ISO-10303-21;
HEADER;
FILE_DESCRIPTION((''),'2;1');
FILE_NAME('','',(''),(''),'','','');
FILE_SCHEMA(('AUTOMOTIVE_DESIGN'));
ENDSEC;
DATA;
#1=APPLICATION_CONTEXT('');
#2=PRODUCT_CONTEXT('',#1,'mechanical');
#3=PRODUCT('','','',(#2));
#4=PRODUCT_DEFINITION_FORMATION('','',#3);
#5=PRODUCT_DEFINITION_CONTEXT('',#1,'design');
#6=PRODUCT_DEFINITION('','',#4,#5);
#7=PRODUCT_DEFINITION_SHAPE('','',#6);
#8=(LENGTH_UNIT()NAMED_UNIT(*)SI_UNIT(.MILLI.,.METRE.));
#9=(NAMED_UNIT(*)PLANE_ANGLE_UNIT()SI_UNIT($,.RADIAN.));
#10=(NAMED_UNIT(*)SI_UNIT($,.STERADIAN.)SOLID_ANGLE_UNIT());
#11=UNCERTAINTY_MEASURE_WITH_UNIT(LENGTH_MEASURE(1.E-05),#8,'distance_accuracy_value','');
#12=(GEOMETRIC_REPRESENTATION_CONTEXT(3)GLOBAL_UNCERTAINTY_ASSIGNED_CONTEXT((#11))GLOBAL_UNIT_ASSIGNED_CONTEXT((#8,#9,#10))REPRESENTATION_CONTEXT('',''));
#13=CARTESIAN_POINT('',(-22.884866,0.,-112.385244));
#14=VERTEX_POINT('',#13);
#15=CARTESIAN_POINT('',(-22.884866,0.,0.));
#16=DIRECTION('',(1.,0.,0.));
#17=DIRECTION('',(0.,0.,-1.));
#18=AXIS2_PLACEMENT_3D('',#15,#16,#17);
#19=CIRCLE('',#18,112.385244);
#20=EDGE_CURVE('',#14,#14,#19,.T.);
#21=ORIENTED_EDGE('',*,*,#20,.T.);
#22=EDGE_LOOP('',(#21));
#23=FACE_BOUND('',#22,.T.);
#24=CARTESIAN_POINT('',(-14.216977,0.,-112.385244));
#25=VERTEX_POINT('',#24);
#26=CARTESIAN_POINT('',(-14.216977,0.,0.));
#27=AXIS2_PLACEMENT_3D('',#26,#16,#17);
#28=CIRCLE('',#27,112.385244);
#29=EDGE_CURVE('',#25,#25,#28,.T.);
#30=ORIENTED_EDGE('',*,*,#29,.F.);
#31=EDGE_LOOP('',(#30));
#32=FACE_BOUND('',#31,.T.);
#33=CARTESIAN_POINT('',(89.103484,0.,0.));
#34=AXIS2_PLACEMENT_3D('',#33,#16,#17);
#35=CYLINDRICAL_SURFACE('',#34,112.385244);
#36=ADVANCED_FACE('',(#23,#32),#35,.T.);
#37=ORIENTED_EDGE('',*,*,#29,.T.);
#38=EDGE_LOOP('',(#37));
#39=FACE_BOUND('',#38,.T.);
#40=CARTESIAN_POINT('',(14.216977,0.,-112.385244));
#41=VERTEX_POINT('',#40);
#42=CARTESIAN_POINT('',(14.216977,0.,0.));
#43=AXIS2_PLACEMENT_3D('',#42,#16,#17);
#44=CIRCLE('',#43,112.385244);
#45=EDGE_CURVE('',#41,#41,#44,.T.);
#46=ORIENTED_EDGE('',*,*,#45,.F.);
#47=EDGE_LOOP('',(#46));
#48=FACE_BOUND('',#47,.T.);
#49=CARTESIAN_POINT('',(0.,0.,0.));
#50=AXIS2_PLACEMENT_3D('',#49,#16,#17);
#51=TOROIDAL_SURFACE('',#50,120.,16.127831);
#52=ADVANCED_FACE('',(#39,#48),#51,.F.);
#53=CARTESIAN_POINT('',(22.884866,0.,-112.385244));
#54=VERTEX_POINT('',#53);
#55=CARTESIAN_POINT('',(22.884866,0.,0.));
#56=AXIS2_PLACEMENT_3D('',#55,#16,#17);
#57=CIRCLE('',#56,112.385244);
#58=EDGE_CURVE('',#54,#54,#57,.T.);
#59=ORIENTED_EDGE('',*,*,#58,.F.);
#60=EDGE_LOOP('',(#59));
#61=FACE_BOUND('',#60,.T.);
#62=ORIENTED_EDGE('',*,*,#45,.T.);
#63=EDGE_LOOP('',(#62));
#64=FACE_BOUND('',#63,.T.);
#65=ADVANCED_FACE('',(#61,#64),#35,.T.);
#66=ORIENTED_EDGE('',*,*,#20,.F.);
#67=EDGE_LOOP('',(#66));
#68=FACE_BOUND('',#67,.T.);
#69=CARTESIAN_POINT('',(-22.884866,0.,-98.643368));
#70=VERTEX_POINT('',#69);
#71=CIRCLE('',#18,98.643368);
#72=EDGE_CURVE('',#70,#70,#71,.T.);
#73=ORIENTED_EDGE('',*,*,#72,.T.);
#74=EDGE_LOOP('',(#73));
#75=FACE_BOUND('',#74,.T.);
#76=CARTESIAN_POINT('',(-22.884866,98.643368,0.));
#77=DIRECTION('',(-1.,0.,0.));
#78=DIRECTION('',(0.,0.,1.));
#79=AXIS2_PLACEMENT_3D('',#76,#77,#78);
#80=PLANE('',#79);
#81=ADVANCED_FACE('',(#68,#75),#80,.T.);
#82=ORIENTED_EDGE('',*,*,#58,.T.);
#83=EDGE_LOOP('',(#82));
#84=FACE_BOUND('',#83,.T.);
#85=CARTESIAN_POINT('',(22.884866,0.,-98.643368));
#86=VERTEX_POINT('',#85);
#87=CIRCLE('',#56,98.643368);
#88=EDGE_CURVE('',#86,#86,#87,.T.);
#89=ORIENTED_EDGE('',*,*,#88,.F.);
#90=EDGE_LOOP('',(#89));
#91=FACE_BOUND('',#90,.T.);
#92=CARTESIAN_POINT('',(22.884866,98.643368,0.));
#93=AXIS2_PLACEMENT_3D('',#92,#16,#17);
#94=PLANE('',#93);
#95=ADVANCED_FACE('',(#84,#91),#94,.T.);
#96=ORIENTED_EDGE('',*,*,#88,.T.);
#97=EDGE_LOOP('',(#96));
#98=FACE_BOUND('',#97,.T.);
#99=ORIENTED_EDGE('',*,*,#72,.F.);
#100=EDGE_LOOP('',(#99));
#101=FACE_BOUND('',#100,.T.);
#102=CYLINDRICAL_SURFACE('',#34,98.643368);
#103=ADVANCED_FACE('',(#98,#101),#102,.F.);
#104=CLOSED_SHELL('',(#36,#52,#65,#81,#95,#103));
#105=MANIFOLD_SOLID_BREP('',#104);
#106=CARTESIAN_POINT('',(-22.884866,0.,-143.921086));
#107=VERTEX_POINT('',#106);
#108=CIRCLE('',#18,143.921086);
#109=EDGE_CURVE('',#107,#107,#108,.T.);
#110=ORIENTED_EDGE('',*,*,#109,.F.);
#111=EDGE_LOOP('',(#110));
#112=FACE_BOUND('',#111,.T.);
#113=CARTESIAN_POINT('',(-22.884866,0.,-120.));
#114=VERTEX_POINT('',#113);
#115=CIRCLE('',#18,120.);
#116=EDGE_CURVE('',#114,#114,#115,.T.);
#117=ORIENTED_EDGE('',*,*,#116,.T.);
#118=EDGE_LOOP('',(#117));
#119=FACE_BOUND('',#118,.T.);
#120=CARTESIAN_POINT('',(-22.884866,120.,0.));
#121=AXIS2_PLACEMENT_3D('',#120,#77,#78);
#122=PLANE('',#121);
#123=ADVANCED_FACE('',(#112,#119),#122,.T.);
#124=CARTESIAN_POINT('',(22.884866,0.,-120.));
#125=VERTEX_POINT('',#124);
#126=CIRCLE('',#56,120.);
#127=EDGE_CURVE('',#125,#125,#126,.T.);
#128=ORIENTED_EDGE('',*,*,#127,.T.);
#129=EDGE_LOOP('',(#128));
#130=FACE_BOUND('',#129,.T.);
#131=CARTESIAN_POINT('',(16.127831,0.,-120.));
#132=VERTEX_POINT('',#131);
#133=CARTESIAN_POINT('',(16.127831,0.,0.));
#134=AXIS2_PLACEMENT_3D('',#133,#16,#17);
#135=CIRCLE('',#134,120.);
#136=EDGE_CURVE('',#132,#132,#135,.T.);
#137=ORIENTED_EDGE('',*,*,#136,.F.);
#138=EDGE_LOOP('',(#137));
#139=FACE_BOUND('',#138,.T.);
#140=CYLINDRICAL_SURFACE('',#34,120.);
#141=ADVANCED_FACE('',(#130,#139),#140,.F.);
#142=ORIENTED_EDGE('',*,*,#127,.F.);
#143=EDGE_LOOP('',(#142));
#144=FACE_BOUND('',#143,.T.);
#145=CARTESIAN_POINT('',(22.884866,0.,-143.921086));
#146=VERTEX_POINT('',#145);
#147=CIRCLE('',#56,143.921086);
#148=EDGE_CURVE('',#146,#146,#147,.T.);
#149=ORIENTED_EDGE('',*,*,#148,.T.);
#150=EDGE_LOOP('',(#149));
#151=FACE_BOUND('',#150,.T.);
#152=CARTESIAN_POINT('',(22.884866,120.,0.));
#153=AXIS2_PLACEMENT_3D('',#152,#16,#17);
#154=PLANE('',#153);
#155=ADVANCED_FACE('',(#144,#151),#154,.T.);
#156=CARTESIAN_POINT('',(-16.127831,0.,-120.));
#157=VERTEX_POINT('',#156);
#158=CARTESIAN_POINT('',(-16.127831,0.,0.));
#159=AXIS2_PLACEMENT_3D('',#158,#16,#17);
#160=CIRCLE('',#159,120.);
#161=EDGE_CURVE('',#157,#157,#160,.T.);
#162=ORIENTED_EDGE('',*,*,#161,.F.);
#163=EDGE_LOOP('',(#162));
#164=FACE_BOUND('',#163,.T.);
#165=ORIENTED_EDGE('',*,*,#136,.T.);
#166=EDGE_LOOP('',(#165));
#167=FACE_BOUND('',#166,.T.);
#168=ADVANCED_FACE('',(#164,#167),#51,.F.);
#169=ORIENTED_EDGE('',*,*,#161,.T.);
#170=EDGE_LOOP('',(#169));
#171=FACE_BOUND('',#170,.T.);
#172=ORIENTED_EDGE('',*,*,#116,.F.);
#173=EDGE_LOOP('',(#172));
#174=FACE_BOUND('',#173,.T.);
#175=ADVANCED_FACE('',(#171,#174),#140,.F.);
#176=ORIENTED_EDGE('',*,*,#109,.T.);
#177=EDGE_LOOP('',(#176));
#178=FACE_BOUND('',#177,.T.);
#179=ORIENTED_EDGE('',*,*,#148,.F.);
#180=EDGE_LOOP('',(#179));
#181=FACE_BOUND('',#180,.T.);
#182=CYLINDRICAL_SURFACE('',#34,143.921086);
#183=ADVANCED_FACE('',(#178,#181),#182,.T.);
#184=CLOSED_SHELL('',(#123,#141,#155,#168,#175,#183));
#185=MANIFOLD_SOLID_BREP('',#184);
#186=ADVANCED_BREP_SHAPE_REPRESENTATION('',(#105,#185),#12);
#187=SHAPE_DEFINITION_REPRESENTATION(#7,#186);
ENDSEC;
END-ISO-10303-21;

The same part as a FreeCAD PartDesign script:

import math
import FreeCAD as App
import Part
import Sketcher

V = App.Vector

doc = App.newDocument("Part")
body = doc.addObject("PartDesign::Body", "Body")
body.AllowCompound = True

# Sketch on XY plane
sketch1 = body.newObject("Sketcher::SketchObject", "Sketch")
sketch1.AttachmentSupport = (doc.getObject("XY_Plane"), [""])
sketch1.MapMode = "FlatFace"
sketch1.addGeometry(Part.LineSegment(V(-22.884866, 120, 0), V(-16.127831, 120, 0)), False)
sketch1.addGeometry(Part.ArcOfCircle(Part.Circle(V(0, 120, 0), V(0, 0, 1), 16.127831), math.radians(0), math.radians(180)), False)
sketch1.addGeometry(Part.LineSegment(V(16.127831, 120, 0), V(22.884866, 120, 0)), False)
sketch1.addGeometry(Part.LineSegment(V(22.884866, 120, 0), V(22.884866, 143.921086, 0)), False)
sketch1.addGeometry(Part.LineSegment(V(22.884866, 143.921086, 0), V(-22.884866, 143.921086, 0)), False)
sketch1.addGeometry(Part.LineSegment(V(-22.884866, 143.921086, 0), V(-22.884866, 120, 0)), False)
sketch1.addGeometry(Part.LineSegment(V(-22.884866, 98.643368, 0), V(22.884866, 98.643368, 0)), False)
sketch1.addGeometry(Part.LineSegment(V(22.884866, 98.643368, 0), V(22.884866, 112.385244, 0)), False)
sketch1.addGeometry(Part.LineSegment(V(22.884866, 112.385244, 0), V(14.216977, 112.385244, 0)), False)
sketch1.addGeometry(Part.ArcOfCircle(Part.Circle(V(0, 120, 0), V(0, 0, 1), 16.127831), math.radians(-151.826049), math.radians(-28.173951)), False)
sketch1.addGeometry(Part.LineSegment(V(-14.216977, 112.385244, 0), V(-22.884866, 112.385244, 0)), False)
sketch1.addGeometry(Part.LineSegment(V(-22.884866, 112.385244, 0), V(-22.884866, 98.643368, 0)), False)
sketch1.addConstraint(Sketcher.Constraint("Coincident", 0, 2, 1, 2))
sketch1.addConstraint(Sketcher.Constraint("Coincident", 1, 1, 2, 1))
sketch1.addConstraint(Sketcher.Constraint("Coincident", 2, 2, 3, 1))
sketch1.addConstraint(Sketcher.Constraint("Coincident", 3, 2, 4, 1))
sketch1.addConstraint(Sketcher.Constraint("Coincident", 4, 2, 5, 1))
sketch1.addConstraint(Sketcher.Constraint("Coincident", 5, 2, 0, 1))
sketch1.addConstraint(Sketcher.Constraint("Coincident", 6, 2, 7, 1))
sketch1.addConstraint(Sketcher.Constraint("Coincident", 7, 2, 8, 1))
sketch1.addConstraint(Sketcher.Constraint("Coincident", 8, 2, 9, 2))
sketch1.addConstraint(Sketcher.Constraint("Coincident", 9, 1, 10, 1))
sketch1.addConstraint(Sketcher.Constraint("Coincident", 10, 2, 11, 1))
sketch1.addConstraint(Sketcher.Constraint("Coincident", 11, 2, 6, 1))
sketch1.addConstraint(Sketcher.Constraint("Horizontal", 0))
sketch1.addConstraint(Sketcher.Constraint("Horizontal", 2))
sketch1.addConstraint(Sketcher.Constraint("Vertical", 3))
sketch1.addConstraint(Sketcher.Constraint("Horizontal", 4))
sketch1.addConstraint(Sketcher.Constraint("Vertical", 5))
sketch1.addConstraint(Sketcher.Constraint("Horizontal", 6))
sketch1.addConstraint(Sketcher.Constraint("Vertical", 7))
sketch1.addConstraint(Sketcher.Constraint("Horizontal", 8))
sketch1.addConstraint(Sketcher.Constraint("Horizontal", 10))
sketch1.addConstraint(Sketcher.Constraint("Vertical", 11))
sketch1.addConstraint(Sketcher.Constraint("Coincident", 9, 3, 1, 3))
sketch1.addConstraint(Sketcher.Constraint("Equal", 1, 9))
sketch1.addConstraint(Sketcher.Constraint("Symmetric", 0, 2, 1, 1, -2))
sketch1.addConstraint(Sketcher.Constraint("Symmetric", 7, 2, 10, 2, -2))
sketch1.addConstraint(Sketcher.Constraint("Horizontal", 9, 3, 0, 2))
sketch1.addConstraint(Sketcher.Constraint("Vertical", 3, 2, 6, 2))
sketch1.addConstraint(Sketcher.Constraint("Vertical", 5, 2, 10, 2))
sketch1.addConstraint(Sketcher.Constraint("DistanceY", -1, 1, 1, 3, 120.0))
sketch1.addConstraint(Sketcher.Constraint("Radius", 1, 16.127831))
sketch1.addConstraint(Sketcher.Constraint("DistanceX", 8, 2, 8, 1, 8.667889))
sketch1.addConstraint(Sketcher.Constraint("DistanceX", 0, 1, 0, 2, 6.757035))
sketch1.addConstraint(Sketcher.Constraint("DistanceY", 3, 1, 3, 2, 23.921086))
sketch1.addConstraint(Sketcher.Constraint("DistanceY", 7, 1, 7, 2, 13.741875))
revolution = body.newObject("PartDesign::Revolution", "Revolution")
revolution.Profile = sketch1
revolution.ReferenceAxis = (sketch1, ["H_Axis"])
revolution.Angle = 360

doc.recompute()
